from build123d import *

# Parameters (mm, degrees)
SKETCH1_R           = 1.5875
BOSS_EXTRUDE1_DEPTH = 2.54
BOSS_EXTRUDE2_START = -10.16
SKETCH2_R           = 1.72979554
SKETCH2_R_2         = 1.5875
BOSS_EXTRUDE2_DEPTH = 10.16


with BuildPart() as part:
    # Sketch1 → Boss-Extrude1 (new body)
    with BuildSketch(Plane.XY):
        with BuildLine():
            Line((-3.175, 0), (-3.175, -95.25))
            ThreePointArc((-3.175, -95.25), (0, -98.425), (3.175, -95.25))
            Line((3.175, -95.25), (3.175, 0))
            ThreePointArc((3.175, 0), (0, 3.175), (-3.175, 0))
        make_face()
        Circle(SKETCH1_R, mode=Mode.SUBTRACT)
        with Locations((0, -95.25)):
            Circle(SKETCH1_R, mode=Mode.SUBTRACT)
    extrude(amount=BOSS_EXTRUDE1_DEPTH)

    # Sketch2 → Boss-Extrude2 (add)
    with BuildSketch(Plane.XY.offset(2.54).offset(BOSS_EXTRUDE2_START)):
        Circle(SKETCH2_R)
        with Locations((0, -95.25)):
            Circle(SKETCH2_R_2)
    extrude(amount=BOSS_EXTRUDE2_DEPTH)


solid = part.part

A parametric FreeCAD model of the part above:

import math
import FreeCAD as App
import Part
import Sketcher

V = App.Vector
Q = App.Units.Quantity

doc = App.newDocument("Part")
body = doc.addObject("PartDesign::Body", "Body")

# Sketch on XY plane
sketch1 = body.newObject("Sketcher::SketchObject", "Sketch")
sketch1.AttachmentSupport = (doc.getObject("XY_Plane"), [""])
sketch1.MapMode = "FlatFace"
sketch1.addGeometry(Part.LineSegment(V(-3.2, 0, 0), V(-3.2, -95.2, 0)), False)
sketch1.addGeometry(Part.ArcOfCircle(Part.Circle(V(0, -95.2, 0), V(0, 0, 1), 3.2), math.radians(180), math.radians(360)), False)
sketch1.addGeometry(Part.LineSegment(V(3.2, -95.2, 0), V(3.2, 0, 0)), False)
sketch1.addGeometry(Part.ArcOfCircle(Part.Circle(V(0, 0, 0), V(0, 0, 1), 3.2), math.radians(0), math.radians(180)), False)
sketch1.addGeometry(Part.Circle(V(0, -95.2, 0), V(0, 0, 1), 1.6), False)
sketch1.addGeometry(Part.Circle(V(0, 0, 0), V(0, 0, 1), 1.6), False)
sketch1.addConstraint(Sketcher.Constraint("Tangent", 0, 2, 1, 1))
sketch1.addConstraint(Sketcher.Constraint("Tangent", 1, 2, 2, 1))
sketch1.addConstraint(Sketcher.Constraint("Tangent", 2, 2, 3, 1))
sketch1.addConstraint(Sketcher.Constraint("Tangent", 3, 2, 0, 1))
sketch1.addConstraint(Sketcher.Constraint("Vertical", 0))
sketch1.addConstraint(Sketcher.Constraint("Vertical", 2))
sketch1.addConstraint(Sketcher.Constraint("Coincident", 3, 3, -1, 1))
sketch1.addConstraint(Sketcher.Constraint("Coincident", 5, 3, -1, 1))
sketch1.addConstraint(Sketcher.Constraint("Coincident", 4, 3, 1, 3))
sketch1.addConstraint(Sketcher.Constraint("Equal", 4, 5))
sketch1.addConstraint(Sketcher.Constraint("Diameter", 4, Q("0.125 in")))
sketch1.addConstraint(Sketcher.Constraint("Radius", 1, Q("0.125 in")))
sketch1.addConstraint(Sketcher.Constraint("DistanceY", 0, 2, 0, 1, Q("3.75 in")))
pad1 = body.newObject("PartDesign::Pad", "Pad")
pad1.Profile = sketch1
pad1.Length = Q("0.1 in")

# Sketch on XY plane
sketch2 = body.newObject("Sketcher::SketchObject", "Sketch001")
sketch2.AttachmentSupport = (doc.getObject("XY_Plane"), [""])
sketch2.MapMode = "FlatFace"
sketch2.AttachmentOffset = App.Placement(V(0, 0, -0.3 * 25.4), App.Rotation())
sketch2.addGeometry(Part.Circle(V(0, 0, 0), V(0, 0, 1), 1.7), False)
sketch2.addGeometry(Part.Circle(V(0, -95.2, 0), V(0, 0, 1), 1.6), False)
sketch2.addConstraint(Sketcher.Constraint("Coincident", 0, 3, -1, 1))
sketch2.addConstraint(Sketcher.Constraint("PointOnObject", 1, 3, -2))
sketch2.addConstraint(Sketcher.Constraint("Diameter", 1, Q("0.125 in")))
sketch2.addConstraint(Sketcher.Constraint("DistanceY", 1, 3, -1, 1, Q("3.75 in")))
sketch2.addConstraint(Sketcher.Constraint("Diameter", 0, Q("3.459591 mm")))
pad2 = body.newObject("PartDesign::Pad", "Pad001")
pad2.Profile = sketch2
pad2.Length = Q("0.4 in")

doc.recompute()
